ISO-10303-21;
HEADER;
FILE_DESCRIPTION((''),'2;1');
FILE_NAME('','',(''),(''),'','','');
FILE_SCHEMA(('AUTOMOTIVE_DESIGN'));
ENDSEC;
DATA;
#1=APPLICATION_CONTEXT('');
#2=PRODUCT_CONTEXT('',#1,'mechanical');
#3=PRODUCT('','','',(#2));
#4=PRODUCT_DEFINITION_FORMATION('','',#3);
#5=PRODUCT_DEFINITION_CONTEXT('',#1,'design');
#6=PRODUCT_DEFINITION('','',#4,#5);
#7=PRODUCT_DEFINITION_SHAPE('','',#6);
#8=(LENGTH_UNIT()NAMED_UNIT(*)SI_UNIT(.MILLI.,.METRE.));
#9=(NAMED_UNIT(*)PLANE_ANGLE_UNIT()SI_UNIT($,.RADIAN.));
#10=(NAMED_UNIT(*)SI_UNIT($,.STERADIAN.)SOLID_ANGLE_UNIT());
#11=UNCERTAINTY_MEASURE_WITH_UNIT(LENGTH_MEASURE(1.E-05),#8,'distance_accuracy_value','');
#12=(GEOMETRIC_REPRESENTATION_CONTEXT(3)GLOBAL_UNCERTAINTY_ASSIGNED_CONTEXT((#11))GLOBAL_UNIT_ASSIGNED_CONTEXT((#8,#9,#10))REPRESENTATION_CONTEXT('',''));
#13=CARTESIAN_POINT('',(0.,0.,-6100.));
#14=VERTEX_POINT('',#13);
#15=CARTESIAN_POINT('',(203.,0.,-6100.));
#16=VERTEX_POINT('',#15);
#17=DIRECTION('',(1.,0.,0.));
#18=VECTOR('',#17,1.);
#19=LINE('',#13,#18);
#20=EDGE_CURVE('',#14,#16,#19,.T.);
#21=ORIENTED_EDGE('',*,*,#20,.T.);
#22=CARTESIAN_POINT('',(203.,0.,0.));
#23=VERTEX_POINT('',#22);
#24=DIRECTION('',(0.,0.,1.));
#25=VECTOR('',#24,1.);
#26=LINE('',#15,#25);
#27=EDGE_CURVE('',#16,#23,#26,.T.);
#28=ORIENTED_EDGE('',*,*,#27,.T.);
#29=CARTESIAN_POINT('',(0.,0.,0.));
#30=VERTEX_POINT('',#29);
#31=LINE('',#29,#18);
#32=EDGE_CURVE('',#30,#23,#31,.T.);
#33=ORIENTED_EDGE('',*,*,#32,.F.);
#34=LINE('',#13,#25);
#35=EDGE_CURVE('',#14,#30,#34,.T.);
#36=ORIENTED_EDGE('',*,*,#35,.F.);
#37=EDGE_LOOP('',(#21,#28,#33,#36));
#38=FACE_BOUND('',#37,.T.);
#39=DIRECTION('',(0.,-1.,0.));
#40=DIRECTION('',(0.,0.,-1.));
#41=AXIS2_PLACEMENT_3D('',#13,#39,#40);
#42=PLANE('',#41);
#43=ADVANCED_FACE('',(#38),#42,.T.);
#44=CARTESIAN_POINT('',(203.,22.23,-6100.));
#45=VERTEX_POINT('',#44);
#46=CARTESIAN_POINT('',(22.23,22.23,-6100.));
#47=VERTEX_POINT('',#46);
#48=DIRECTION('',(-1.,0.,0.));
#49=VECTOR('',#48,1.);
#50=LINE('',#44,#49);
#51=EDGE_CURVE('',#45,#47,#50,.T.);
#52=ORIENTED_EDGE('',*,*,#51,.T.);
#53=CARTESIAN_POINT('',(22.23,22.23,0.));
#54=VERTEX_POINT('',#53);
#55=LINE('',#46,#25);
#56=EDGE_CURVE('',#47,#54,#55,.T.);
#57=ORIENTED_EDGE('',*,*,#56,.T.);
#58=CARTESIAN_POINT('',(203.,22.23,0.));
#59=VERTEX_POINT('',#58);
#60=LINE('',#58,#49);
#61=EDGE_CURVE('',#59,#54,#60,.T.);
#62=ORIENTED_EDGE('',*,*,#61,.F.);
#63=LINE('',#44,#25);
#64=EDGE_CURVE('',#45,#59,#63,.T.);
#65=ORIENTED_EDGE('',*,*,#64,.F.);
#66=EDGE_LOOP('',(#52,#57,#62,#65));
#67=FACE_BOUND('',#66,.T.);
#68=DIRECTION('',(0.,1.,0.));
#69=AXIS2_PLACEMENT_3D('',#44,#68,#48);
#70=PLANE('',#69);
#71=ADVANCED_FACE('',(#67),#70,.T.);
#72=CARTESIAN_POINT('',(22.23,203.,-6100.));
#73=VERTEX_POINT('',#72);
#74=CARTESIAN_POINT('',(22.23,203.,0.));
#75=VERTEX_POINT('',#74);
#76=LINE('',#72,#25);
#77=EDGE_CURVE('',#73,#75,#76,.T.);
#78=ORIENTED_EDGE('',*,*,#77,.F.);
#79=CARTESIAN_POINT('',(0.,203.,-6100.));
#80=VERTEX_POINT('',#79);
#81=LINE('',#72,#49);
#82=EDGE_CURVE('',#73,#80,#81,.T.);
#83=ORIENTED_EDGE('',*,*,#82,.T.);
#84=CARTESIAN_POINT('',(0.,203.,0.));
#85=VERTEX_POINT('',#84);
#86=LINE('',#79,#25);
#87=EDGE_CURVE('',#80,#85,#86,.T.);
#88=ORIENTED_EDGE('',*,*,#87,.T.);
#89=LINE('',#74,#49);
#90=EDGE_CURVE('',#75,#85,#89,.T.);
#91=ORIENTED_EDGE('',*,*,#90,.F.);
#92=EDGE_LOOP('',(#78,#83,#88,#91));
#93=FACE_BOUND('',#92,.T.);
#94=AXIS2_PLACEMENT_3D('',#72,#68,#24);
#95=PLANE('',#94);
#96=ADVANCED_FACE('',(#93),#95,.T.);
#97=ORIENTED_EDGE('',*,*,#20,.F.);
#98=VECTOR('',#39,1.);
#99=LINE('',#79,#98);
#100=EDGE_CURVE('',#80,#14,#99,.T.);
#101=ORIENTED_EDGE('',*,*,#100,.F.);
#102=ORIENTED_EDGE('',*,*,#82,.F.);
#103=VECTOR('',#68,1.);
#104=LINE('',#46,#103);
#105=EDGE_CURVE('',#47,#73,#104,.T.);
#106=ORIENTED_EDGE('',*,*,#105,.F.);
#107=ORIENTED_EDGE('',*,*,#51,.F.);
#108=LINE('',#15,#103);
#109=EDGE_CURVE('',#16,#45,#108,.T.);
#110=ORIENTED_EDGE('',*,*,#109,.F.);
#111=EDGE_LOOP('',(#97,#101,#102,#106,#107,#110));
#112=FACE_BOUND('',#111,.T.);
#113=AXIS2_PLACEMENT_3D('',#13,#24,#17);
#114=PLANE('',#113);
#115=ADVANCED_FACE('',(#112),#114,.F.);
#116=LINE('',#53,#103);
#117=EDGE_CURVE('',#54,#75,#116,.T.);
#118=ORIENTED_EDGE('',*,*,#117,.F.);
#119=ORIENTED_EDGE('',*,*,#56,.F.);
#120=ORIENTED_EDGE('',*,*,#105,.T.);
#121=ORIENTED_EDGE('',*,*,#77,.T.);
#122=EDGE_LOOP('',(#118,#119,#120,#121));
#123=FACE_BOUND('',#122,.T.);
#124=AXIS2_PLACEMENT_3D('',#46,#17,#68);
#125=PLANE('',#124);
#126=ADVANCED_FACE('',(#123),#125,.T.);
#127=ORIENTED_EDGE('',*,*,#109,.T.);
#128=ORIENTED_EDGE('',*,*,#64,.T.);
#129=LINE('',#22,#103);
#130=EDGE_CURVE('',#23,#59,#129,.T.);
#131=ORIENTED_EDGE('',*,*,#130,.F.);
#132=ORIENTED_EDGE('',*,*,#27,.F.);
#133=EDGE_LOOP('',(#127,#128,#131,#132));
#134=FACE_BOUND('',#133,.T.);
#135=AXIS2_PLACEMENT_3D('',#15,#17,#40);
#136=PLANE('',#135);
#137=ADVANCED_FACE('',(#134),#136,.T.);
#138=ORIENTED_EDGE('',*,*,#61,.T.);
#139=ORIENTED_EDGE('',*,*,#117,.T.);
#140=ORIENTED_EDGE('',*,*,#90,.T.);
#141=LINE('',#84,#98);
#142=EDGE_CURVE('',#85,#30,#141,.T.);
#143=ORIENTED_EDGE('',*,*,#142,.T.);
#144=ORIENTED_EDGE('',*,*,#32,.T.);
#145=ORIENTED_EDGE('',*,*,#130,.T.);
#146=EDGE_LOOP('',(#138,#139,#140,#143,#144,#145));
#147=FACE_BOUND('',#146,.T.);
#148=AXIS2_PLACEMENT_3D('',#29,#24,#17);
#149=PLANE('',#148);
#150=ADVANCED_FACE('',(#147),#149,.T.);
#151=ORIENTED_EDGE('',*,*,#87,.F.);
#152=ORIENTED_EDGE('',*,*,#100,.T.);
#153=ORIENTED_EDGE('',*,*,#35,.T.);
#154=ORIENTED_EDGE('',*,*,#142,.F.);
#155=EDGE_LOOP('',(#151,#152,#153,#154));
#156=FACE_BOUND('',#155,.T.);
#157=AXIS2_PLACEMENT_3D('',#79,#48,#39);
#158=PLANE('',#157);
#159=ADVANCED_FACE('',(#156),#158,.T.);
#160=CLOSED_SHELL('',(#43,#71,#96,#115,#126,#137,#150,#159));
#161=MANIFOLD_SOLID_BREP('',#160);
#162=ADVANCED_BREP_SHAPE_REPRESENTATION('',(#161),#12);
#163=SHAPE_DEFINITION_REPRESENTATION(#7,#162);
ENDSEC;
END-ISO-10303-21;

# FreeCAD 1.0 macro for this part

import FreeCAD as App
import Part
import Sketcher

doc = App.newDocument("Part")
params = doc.addObject("Spreadsheet::Sheet", "Params")
for row, (alias, value) in enumerate([
    ("sketch1_width", "203 mm"),
    ("sketch1_width2", "180.77 mm"),
    ("pad1_length", "6100 mm"),
], start=1):
    params.set(f"A{row}", alias)
    params.set(f"B{row}", "=" + value)
    params.setAlias(f"B{row}", alias)

body = doc.addObject("PartDesign::Body", "Body")

sketch1 = body.newObject("Sketcher::SketchObject", "Sketch")
sketch1.AttachmentSupport = (doc.getObject("XY_Plane"), [""])
sketch1.MapMode = "FlatFace"
sketch1.addGeometry(Part.LineSegment(App.Vector(0, 203, 0), App.Vector(0, 0, 0)), False)
sketch1.addGeometry(Part.LineSegment(App.Vector(0, 0, 0), App.Vector(203, 0, 0)), False)
sketch1.addGeometry(Part.LineSegment(App.Vector(203, 0, 0), App.Vector(203, 22, 0)), False)
sketch1.addGeometry(Part.LineSegment(App.Vector(203, 22, 0), App.Vector(22, 22, 0)), False)
sketch1.addGeometry(Part.LineSegment(App.Vector(22, 22, 0), App.Vector(22, 203, 0)), False)
sketch1.addGeometry(Part.LineSegment(App.Vector(22, 203, 0), App.Vector(0, 203, 0)), False)
sketch1.addConstraint(Sketcher.Constraint("Coincident", 0, 2, 1, 1))
sketch1.addConstraint(Sketcher.Constraint("Coincident", 1, 2, 2, 1))
sketch1.addConstraint(Sketcher.Constraint("Coincident", 2, 2, 3, 1))
sketch1.addConstraint(Sketcher.Constraint("Coincident", 3, 2, 4, 1))
sketch1.addConstraint(Sketcher.Constraint("Coincident", 4, 2, 5, 1))
sketch1.addConstraint(Sketcher.Constraint("Coincident", 5, 2, 0, 1))
sketch1.addConstraint(Sketcher.Constraint("Vertical", 0))
sketch1.addConstraint(Sketcher.Constraint("Horizontal", 1))
sketch1.addConstraint(Sketcher.Constraint("Vertical", 2))
sketch1.addConstraint(Sketcher.Constraint("Horizontal", 3))
sketch1.addConstraint(Sketcher.Constraint("Vertical", 4))
sketch1.addConstraint(Sketcher.Constraint("Horizontal", 5))
sketch1.addConstraint(Sketcher.Constraint("Coincident", 0, 2, -1, 1))
sketch1.addConstraint(Sketcher.Constraint("Equal", 1, 0))
sketch1.addConstraint(Sketcher.Constraint("Equal", 5, 2))
sketch1.addConstraint(Sketcher.Constraint("DistanceX", 1, 1, 1, 2, 203.0))
sketch1.addConstraint(Sketcher.Constraint("DistanceX", 3, 2, 3, 1, 180.77))
sketch1.setExpression("Constraints[15]", "Params.sketch1_width")
sketch1.setExpression("Constraints[16]", "Params.sketch1_width2")
pad1 = body.newObject("PartDesign::Pad", "Pad")
pad1.Profile = sketch1
pad1.setExpression("Length", "Params.pad1_length")
pad1.Reversed = True

doc.recompute()
